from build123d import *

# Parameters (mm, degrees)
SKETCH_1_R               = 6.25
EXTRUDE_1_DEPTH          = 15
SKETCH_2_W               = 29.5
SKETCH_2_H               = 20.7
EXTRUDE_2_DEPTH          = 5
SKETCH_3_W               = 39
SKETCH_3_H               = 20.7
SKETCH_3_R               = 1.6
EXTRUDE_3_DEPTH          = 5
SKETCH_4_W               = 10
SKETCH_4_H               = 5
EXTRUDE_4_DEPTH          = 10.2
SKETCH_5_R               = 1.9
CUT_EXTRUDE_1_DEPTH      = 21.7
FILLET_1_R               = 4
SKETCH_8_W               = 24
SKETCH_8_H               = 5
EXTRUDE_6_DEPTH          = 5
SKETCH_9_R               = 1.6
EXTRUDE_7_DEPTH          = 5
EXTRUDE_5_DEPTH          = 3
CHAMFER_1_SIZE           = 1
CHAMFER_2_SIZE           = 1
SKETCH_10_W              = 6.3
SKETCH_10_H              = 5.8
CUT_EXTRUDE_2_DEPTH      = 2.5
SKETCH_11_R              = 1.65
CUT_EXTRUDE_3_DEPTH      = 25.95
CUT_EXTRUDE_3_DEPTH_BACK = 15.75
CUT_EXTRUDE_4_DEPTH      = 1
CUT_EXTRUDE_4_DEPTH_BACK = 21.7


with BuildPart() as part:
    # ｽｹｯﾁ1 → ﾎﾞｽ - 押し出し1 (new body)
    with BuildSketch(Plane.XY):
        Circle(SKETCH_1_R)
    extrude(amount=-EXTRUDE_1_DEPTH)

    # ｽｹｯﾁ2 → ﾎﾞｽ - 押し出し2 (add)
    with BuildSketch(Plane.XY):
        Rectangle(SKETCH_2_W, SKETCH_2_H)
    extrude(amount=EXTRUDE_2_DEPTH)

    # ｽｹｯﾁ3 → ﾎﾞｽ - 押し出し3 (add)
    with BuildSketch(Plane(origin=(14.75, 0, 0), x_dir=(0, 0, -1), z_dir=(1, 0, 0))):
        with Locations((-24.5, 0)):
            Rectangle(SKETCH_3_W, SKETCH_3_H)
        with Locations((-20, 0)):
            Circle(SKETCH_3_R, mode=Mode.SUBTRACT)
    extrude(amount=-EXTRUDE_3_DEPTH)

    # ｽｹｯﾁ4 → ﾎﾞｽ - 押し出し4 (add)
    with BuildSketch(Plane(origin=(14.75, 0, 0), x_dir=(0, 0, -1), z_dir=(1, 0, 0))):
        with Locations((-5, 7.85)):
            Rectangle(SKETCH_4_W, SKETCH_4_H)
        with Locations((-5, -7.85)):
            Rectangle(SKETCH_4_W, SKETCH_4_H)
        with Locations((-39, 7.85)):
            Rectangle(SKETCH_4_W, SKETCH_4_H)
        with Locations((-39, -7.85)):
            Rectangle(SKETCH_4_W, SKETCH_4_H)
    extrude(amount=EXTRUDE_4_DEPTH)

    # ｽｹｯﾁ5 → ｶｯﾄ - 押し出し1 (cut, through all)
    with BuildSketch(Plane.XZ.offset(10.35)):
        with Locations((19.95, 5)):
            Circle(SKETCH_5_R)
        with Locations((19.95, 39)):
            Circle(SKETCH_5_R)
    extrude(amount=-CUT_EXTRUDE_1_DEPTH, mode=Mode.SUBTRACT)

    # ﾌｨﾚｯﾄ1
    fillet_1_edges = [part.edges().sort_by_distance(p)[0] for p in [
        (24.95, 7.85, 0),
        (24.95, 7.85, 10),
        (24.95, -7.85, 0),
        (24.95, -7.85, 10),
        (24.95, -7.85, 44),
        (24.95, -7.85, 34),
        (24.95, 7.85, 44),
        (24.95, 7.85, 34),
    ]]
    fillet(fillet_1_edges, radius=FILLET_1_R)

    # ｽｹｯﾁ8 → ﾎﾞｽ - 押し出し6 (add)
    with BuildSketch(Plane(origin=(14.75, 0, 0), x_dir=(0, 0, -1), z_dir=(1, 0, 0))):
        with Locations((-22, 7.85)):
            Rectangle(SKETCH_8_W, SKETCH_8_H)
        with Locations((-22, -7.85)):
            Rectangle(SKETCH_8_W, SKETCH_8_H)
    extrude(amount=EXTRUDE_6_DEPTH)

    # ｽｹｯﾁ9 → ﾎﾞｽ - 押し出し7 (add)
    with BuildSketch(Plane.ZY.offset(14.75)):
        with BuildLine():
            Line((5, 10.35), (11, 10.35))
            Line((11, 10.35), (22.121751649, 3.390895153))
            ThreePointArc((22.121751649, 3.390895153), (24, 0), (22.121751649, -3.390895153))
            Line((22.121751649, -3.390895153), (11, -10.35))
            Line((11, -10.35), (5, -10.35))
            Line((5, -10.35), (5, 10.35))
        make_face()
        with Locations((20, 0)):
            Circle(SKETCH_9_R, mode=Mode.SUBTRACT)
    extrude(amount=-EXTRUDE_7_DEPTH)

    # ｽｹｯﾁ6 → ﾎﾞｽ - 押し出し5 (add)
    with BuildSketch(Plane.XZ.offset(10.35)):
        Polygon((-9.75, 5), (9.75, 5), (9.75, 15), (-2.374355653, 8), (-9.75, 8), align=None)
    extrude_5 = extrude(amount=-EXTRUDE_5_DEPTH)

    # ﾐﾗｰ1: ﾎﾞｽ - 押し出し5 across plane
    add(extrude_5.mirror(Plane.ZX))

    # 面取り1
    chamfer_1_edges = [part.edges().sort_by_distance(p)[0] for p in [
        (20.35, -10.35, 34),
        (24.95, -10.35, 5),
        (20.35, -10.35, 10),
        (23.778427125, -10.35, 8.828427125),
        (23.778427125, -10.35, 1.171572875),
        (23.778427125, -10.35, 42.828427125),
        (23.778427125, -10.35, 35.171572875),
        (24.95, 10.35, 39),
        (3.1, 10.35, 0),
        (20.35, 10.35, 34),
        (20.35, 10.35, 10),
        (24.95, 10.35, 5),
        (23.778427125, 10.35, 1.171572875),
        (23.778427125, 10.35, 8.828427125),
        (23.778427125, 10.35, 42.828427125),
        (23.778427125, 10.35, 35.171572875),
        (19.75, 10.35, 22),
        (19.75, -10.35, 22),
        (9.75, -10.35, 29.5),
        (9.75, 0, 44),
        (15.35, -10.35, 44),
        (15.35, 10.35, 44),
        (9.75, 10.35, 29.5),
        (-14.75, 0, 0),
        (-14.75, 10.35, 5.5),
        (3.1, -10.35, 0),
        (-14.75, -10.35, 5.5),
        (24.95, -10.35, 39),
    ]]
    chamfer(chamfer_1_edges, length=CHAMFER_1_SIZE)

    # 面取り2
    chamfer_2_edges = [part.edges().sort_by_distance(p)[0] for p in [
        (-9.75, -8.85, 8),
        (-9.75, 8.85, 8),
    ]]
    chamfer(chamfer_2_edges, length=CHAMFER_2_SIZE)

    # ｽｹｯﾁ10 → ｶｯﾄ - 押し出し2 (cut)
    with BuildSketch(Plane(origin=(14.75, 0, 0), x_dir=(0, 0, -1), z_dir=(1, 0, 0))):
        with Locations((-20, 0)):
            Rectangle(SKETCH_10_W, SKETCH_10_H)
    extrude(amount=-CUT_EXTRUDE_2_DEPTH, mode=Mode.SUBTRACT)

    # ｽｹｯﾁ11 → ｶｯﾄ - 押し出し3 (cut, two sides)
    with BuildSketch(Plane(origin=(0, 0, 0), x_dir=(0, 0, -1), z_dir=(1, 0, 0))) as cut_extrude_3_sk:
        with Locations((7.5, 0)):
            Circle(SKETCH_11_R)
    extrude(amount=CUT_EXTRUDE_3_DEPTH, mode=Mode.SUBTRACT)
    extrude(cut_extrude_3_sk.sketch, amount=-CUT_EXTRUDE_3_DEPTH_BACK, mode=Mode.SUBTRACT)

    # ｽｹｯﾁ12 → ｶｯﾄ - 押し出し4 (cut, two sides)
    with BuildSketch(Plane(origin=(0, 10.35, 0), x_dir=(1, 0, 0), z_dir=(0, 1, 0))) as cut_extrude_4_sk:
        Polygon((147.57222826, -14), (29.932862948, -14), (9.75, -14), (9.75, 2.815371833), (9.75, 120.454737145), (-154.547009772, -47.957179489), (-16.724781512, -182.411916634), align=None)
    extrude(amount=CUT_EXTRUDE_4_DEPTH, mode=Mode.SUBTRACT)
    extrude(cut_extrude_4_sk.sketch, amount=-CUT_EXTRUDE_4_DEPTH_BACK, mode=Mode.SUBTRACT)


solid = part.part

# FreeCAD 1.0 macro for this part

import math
import FreeCAD as App
import Part
import Sketcher
Q = App.Units.Quantity


def edges_at(feature, points):
    """Names of the edges that pass closest to the given points."""
    edges = feature.Shape.Edges
    near = lambda p: min(range(len(edges)), key=lambda i: edges[i].distToShape(Part.Vertex(*p))[0])
    return sorted({f"Edge{near(p) + 1}" for p in points})

doc = App.newDocument("Part")
body = doc.addObject("PartDesign::Body", "Body")

sketch1 = body.newObject("Sketcher::SketchObject", "Sketch")
sketch1.AttachmentSupport = (doc.getObject("XY_Plane"), [""])
sketch1.MapMode = "FlatFace"
sketch1.addGeometry(Part.Circle(App.Vector(0, 0, 0), App.Vector(0, 0, 1), 6.25), False)
sketch1.addConstraint([
    Sketcher.Constraint("Coincident", 0, 3, -1, 1),
    Sketcher.Constraint("Diameter", 0, 12.5),
])
pad1 = body.newObject("PartDesign::Pad", "Pad")
pad1.Profile = sketch1
pad1.Length = 15
pad1.Reversed = True

sketch2 = body.newObject("Sketcher::SketchObject", "Sketch001")
sketch2.AttachmentSupport = (doc.getObject("XY_Plane"), [""])
sketch2.MapMode = "FlatFace"
sketch2.addGeometry([
    Part.LineSegment(App.Vector(-14.75, 10.35, 0), App.Vector(-14.75, -10.35, 0)),
    Part.LineSegment(App.Vector(-14.75, -10.35, 0), App.Vector(14.75, -10.35, 0)),
    Part.LineSegment(App.Vector(14.75, -10.35, 0), App.Vector(14.75, 10.35, 0)),
    Part.LineSegment(App.Vector(14.75, 10.35, 0), App.Vector(-14.75, 10.35, 0)),
], False)
sketch2.addConstraint([
    Sketcher.Constraint("Coincident", 0, 2, 1, 1),
    Sketcher.Constraint("Coincident", 1, 2, 2, 1),
    Sketcher.Constraint("Coincident", 2, 2, 3, 1),
    Sketcher.Constraint("Coincident", 3, 2, 0, 1),
    Sketcher.Constraint("Vertical", 0),
    Sketcher.Constraint("Horizontal", 1),
    Sketcher.Constraint("Vertical", 2),
    Sketcher.Constraint("Horizontal", 3),
    Sketcher.Constraint("Symmetric", 0, 2, 2, 2, -1, 1),
    Sketcher.Constraint("DistanceX", 1, 1, 1, 2, 29.5),
    Sketcher.Constraint("DistanceY", 0, 2, 0, 1, 20.7),
])
pad2 = body.newObject("PartDesign::Pad", "Pad001")
pad2.Profile = sketch2
pad2.Length = 5

sketch3 = body.newObject("Sketcher::SketchObject", "Sketch002")
sketch3.AttachmentSupport = (doc.getObject("YZ_Plane"), [""])
sketch3.MapMode = "FlatFace"
sketch3.AttachmentOffset = App.Placement(App.Vector(0, 0, 14.75), App.Rotation())
sketch3.addGeometry([
    Part.LineSegment(App.Vector(10.35, 44, 0), App.Vector(-10.35, 44, 0)),
    Part.LineSegment(App.Vector(-10.35, 44, 0), App.Vector(-10.35, 5, 0)),
    Part.LineSegment(App.Vector(-10.35, 5, 0), App.Vector(10.35, 5, 0)),
    Part.LineSegment(App.Vector(10.35, 5, 0), App.Vector(10.35, 44, 0)),
    Part.Circle(App.Vector(0, 20, 0), App.Vector(0, 0, 1), 1.6),
], False)
sketch3.addConstraint([
    Sketcher.Constraint("Coincident", 0, 2, 1, 1),
    Sketcher.Constraint("Coincident", 1, 2, 2, 1),
    Sketcher.Constraint("Coincident", 2, 2, 3, 1),
    Sketcher.Constraint("Coincident", 3, 2, 0, 1),
    Sketcher.Constraint("Horizontal", 0),
    Sketcher.Constraint("Vertical", 1),
    Sketcher.Constraint("Horizontal", 2),
    Sketcher.Constraint("Vertical", 3),
    Sketcher.Constraint("PointOnObject", 4, 3, -2),
    Sketcher.Constraint("Diameter", 4, 3.2),
    Sketcher.Constraint("DistanceY", 1, 2, 1, 1, 39.0),
    Sketcher.Constraint("DistanceX", 0, 2, 0, 1, 20.7),
    Sketcher.Constraint("DistanceY", -1, 1, 4, 3, 20.0),
    Sketcher.Constraint("DistanceY", -1, 1, 0, 2, 44.0),
    Sketcher.Constraint("DistanceX", 0, 2, -1, 1, 10.35),
])
pad3 = body.newObject("PartDesign::Pad", "Pad002")
pad3.Profile = sketch3
pad3.Length = 5
pad3.Reversed = True

sketch4 = body.newObject("Sketcher::SketchObject", "Sketch003")
sketch4.AttachmentSupport = (doc.getObject("YZ_Plane"), [""])
sketch4.MapMode = "FlatFace"
sketch4.AttachmentOffset = App.Placement(App.Vector(0, 0, 14.75), App.Rotation())
sketch4.addGeometry([
    Part.LineSegment(App.Vector(10.35, 10, 0), App.Vector(5.35, 10, 0)),
    Part.LineSegment(App.Vector(5.35, 10, 0), App.Vector(5.35, 0, 0)),
    Part.LineSegment(App.Vector(5.35, 0, 0), App.Vector(10.35, 0, 0)),
    Part.LineSegment(App.Vector(10.35, 0, 0), App.Vector(10.35, 10, 0)),
    Part.LineSegment(App.Vector(-5.35, 10, 0), App.Vector(-10.35, 10, 0)),
    Part.LineSegment(App.Vector(-10.35, 10, 0), App.Vector(-10.35, 0, 0)),
    Part.LineSegment(App.Vector(-10.35, 0, 0), App.Vector(-5.35, 0, 0)),
    Part.LineSegment(App.Vector(-5.35, 0, 0), App.Vector(-5.35, 10, 0)),
    Part.LineSegment(App.Vector(10.35, 44, 0), App.Vector(5.35, 44, 0)),
    Part.LineSegment(App.Vector(5.35, 44, 0), App.Vector(5.35, 34, 0)),
    Part.LineSegment(App.Vector(5.35, 34, 0), App.Vector(10.35, 34, 0)),
    Part.LineSegment(App.Vector(10.35, 34, 0), App.Vector(10.35, 44, 0)),
    Part.LineSegment(App.Vector(-5.35, 44, 0), App.Vector(-10.35, 44, 0)),
    Part.LineSegment(App.Vector(-10.35, 44, 0), App.Vector(-10.35, 34, 0)),
    Part.LineSegment(App.Vector(-10.35, 34, 0), App.Vector(-5.35, 34, 0)),
    Part.LineSegment(App.Vector(-5.35, 34, 0), App.Vector(-5.35, 44, 0)),
], False)
sketch4.addConstraint([
    Sketcher.Constraint("Coincident", 0, 2, 1, 1),
    Sketcher.Constraint("Coincident", 1, 2, 2, 1),
    Sketcher.Constraint("Coincident", 2, 2, 3, 1),
    Sketcher.Constraint("Coincident", 3, 2, 0, 1),
    Sketcher.Constraint("Coincident", 4, 2, 5, 1),
    Sketcher.Constraint("Coincident", 5, 2, 6, 1),
    Sketcher.Constraint("Coincident", 6, 2, 7, 1),
    Sketcher.Constraint("Coincident", 7, 2, 4, 1),
    Sketcher.Constraint("Coincident", 8, 2, 9, 1),
    Sketcher.Constraint("Coincident", 9, 2, 10, 1),
    Sketcher.Constraint("Coincident", 10, 2, 11, 1),
    Sketcher.Constraint("Coincident", 11, 2, 8, 1),
    Sketcher.Constraint("Coincident", 12, 2, 13, 1),
    Sketcher.Constraint("Coincident", 13, 2, 14, 1),
    Sketcher.Constraint("Coincident", 14, 2, 15, 1),
    Sketcher.Constraint("Coincident", 15, 2, 12, 1),
    Sketcher.Constraint("Horizontal", 0),
    Sketcher.Constraint("Vertical", 1),
    Sketcher.Constraint("Horizontal", 2),
    Sketcher.Constraint("Vertical", 3),
    Sketcher.Constraint("Horizontal", 4),
    Sketcher.Constraint("Vertical", 5),
    Sketcher.Constraint("Horizontal", 6),
    Sketcher.Constraint("Vertical", 7),
    Sketcher.Constraint("Horizontal", 8),
    Sketcher.Constraint("Vertical", 9),
    Sketcher.Constraint("Horizontal", 10),
    Sketcher.Constraint("Vertical", 11),
    Sketcher.Constraint("Horizontal", 12),
    Sketcher.Constraint("Vertical", 13),
    Sketcher.Constraint("Horizontal", 14),
    Sketcher.Constraint("Vertical", 15),
    Sketcher.Constraint("Symmetric", 2, 2, 5, 2, -1, 1),
    Sketcher.Constraint("Symmetric", 1, 2, 6, 2, -2),
    Sketcher.Constraint("Symmetric", 11, 2, 12, 2, -2),
    Sketcher.Constraint("Symmetric", 9, 2, 14, 2, -2),
    Sketcher.Constraint("Horizontal", 3, 2, 4, 2),
    Sketcher.Constraint("Vertical", 1, 2, 8, 2),
    Sketcher.Constraint("Vertical", 3, 2, 10, 2),
    Sketcher.Constraint("Equal", 7, 9),
    Sketcher.Constraint("DistanceX", 0, 2, 0, 1, 5.0),
    Sketcher.Constraint("DistanceY", 1, 2, 1, 1, 10.0),
    Sketcher.Constraint("DistanceY", -1, 1, 8, 2, 44.0),
    Sketcher.Constraint("DistanceX", 4, 2, 0, 2, 15.7),
])
pad4 = body.newObject("PartDesign::Pad", "Pad003")
pad4.Profile = sketch4
pad4.Length = 10.2

sketch5 = body.newObject("Sketcher::SketchObject", "Sketch004")
sketch5.AttachmentSupport = (doc.getObject("XZ_Plane"), [""])
sketch5.MapMode = "FlatFace"
sketch5.AttachmentOffset = App.Placement(App.Vector(0, 0, 10.35), App.Rotation())
sketch5.addGeometry([
    Part.Circle(App.Vector(19.95, 5, 0), App.Vector(0, 0, 1), 1.9),
    Part.Circle(App.Vector(19.95, 39, 0), App.Vector(0, 0, 1), 1.9),
], False)
sketch5.addConstraint([
    Sketcher.Constraint("Equal", 0, 1),
    Sketcher.Constraint("Vertical", 0, 3, 1, 3),
    Sketcher.Constraint("Diameter", 0, 3.8),
    Sketcher.Constraint("DistanceY", -1, 1, 0, 3, 5.0),
    Sketcher.Constraint("DistanceY", -1, 1, 1, 3, 39.0),
    Sketcher.Constraint("DistanceX", -1, 1, 0, 3, 19.95),
])
pocket1 = body.newObject("PartDesign::Pocket", "Pocket")
pocket1.Profile = sketch5
pocket1.Type = "ThroughAll"
doc.recompute()

fillet = body.newObject("PartDesign::Fillet", "Fillet")
fillet.Base = (pocket1, edges_at(pocket1, [
    (24.95, 7.85, 0),
    (24.95, 7.85, 10),
    (24.95, -7.85, 0),
    (24.95, -7.85, 10),
    (24.95, -7.85, 44),
    (24.95, -7.85, 34),
    (24.95, 7.85, 44),
    (24.95, 7.85, 34),
]))
fillet.Radius = 4

sketch6 = body.newObject("Sketcher::SketchObject", "Sketch005")
sketch6.AttachmentSupport = (doc.getObject("YZ_Plane"), [""])
sketch6.MapMode = "FlatFace"
sketch6.AttachmentOffset = App.Placement(App.Vector(0, 0, 14.75), App.Rotation())
sketch6.addGeometry([
    Part.LineSegment(App.Vector(10.35, 34, 0), App.Vector(5.35, 34, 0)),
    Part.LineSegment(App.Vector(5.35, 34, 0), App.Vector(5.35, 10, 0)),
    Part.LineSegment(App.Vector(5.35, 10, 0), App.Vector(10.35, 10, 0)),
    Part.LineSegment(App.Vector(10.35, 10, 0), App.Vector(10.35, 34, 0)),
    Part.LineSegment(App.Vector(-5.35, 34, 0), App.Vector(-10.35, 34, 0)),
    Part.LineSegment(App.Vector(-10.35, 34, 0), App.Vector(-10.35, 10, 0)),
    Part.LineSegment(App.Vector(-10.35, 10, 0), App.Vector(-5.35, 10, 0)),
    Part.LineSegment(App.Vector(-5.35, 10, 0), App.Vector(-5.35, 34, 0)),
], False)
sketch6.addConstraint([
    Sketcher.Constraint("Coincident", 0, 2, 1, 1),
    Sketcher.Constraint("Coincident", 1, 2, 2, 1),
    Sketcher.Constraint("Coincident", 2, 2, 3, 1),
    Sketcher.Constraint("Coincident", 3, 2, 0, 1),
    Sketcher.Constraint("Coincident", 4, 2, 5, 1),
    Sketcher.Constraint("Coincident", 5, 2, 6, 1),
    Sketcher.Constraint("Coincident", 6, 2, 7, 1),
    Sketcher.Constraint("Coincident", 7, 2, 4, 1),
    Sketcher.Constraint("Horizontal", 0),
    Sketcher.Constraint("Vertical", 1),
    Sketcher.Constraint("Horizontal", 2),
    Sketcher.Constraint("Vertical", 3),
    Sketcher.Constraint("Horizontal", 4),
    Sketcher.Constraint("Vertical", 5),
    Sketcher.Constraint("Horizontal", 6),
    Sketcher.Constraint("Vertical", 7),
    Sketcher.Constraint("Symmetric", 3, 2, 4, 2, -2),
    Sketcher.Constraint("Symmetric", 1, 2, 6, 2, -2),
    Sketcher.Constraint("DistanceX", 0, 2, 0, 1, 5.0),
    Sketcher.Constraint("DistanceY", 1, 2, 1, 1, 24.0),
    Sketcher.Constraint("DistanceY", -1, 1, 0, 2, 34.0),
    Sketcher.Constraint("DistanceX", 4, 2, 0, 2, 15.7),
])
pad5 = body.newObject("PartDesign::Pad", "Pad004")
pad5.Profile = sketch6
pad5.Length = 5

sketch7 = body.newObject("Sketcher::SketchObject", "Sketch006")
sketch7.AttachmentSupport = (doc.getObject("YZ_Plane"), [""])
sketch7.MapMode = "FlatFace"
sketch7.AttachmentOffset = App.Placement(App.Vector(0, 0, -14.75), App.Rotation())
sketch7.addGeometry([
    Part.LineSegment(App.Vector(10.35, 11, 0), App.Vector(10.35, 5, 0)),
    Part.LineSegment(App.Vector(10.35, 5, 0), App.Vector(-10.35, 5, 0)),
    Part.LineSegment(App.Vector(-10.35, 5, 0), App.Vector(-10.35, 11, 0)),
    Part.LineSegment(App.Vector(-10.35, 11, 0), App.Vector(-3.390895, 22.121752, 0)),
    Part.ArcOfCircle(Part.Circle(App.Vector(0, 20, 0), App.Vector(0, 0, 1), 4), math.radians(32.035048), math.radians(147.964952)),
    Part.LineSegment(App.Vector(3.390895, 22.121752, 0), App.Vector(10.35, 11, 0)),
    Part.Circle(App.Vector(0, 20, 0), App.Vector(0, 0, 1), 1.6),
], False)
sketch7.addConstraint([
    Sketcher.Constraint("Coincident", 0, 2, 1, 1),
    Sketcher.Constraint("Coincident", 1, 2, 2, 1),
    Sketcher.Constraint("Coincident", 2, 2, 3, 1),
    Sketcher.Constraint("Tangent", 3, 2, 4, 2),
    Sketcher.Constraint("Tangent", 4, 1, 5, 1),
    Sketcher.Constraint("Coincident", 5, 2, 0, 1),
    Sketcher.Constraint("Vertical", 0),
    Sketcher.Constraint("Horizontal", 1),
    Sketcher.Constraint("Vertical", 2),
    Sketcher.Constraint("Coincident", 6, 3, 4, 3),
    Sketcher.Constraint("Symmetric", 3, 2, 4, 1, -2),
    Sketcher.Constraint("Horizontal", 2, 2, 5, 2),
    Sketcher.Constraint("Radius", 4, 4.0),
    Sketcher.Constraint("Diameter", 6, 3.2),
    Sketcher.Constraint("DistanceY", 0, 2, 0, 1, 6.0),
    Sketcher.Constraint("DistanceX", 1, 2, 1, 1, 20.7),
    Sketcher.Constraint("DistanceY", -1, 1, 4, 3, 20.0),
    Sketcher.Constraint("DistanceY", -1, 1, 0, 2, 5.0),
])
pad6 = body.newObject("PartDesign::Pad", "Pad005")
pad6.Profile = sketch7
pad6.Length = 5

sketch8 = body.newObject("Sketcher::SketchObject", "Sketch007")
sketch8.AttachmentSupport = (doc.getObject("XZ_Plane"), [""])
sketch8.MapMode = "FlatFace"
sketch8.AttachmentOffset = App.Placement(App.Vector(0, 0, 10.35), App.Rotation())
sketch8.addGeometry([
    Part.LineSegment(App.Vector(-9.75, 5, 0), App.Vector(9.75, 5, 0)),
    Part.LineSegment(App.Vector(9.75, 5, 0), App.Vector(9.75, 15, 0)),
    Part.LineSegment(App.Vector(9.75, 15, 0), App.Vector(-2.374356, 8, 0)),
    Part.LineSegment(App.Vector(-2.374356, 8, 0), App.Vector(-9.75, 8, 0)),
    Part.LineSegment(App.Vector(-9.75, 8, 0), App.Vector(-9.75, 5, 0)),
], False)
sketch8.addConstraint([
    Sketcher.Constraint("Coincident", 0, 2, 1, 1),
    Sketcher.Constraint("Coincident", 1, 2, 2, 1),
    Sketcher.Constraint("Coincident", 2, 2, 3, 1),
    Sketcher.Constraint("Coincident", 3, 2, 4, 1),
    Sketcher.Constraint("Coincident", 4, 2, 0, 1),
    Sketcher.Constraint("Horizontal", 0),
    Sketcher.Constraint("Vertical", 1),
    Sketcher.Constraint("Horizontal", 3),
    Sketcher.Constraint("Vertical", 4),
    Sketcher.Constraint("DistanceY", 1, 1, 1, 2, 10.0),
    Sketcher.Constraint("DistanceY", 4, 2, 4, 1, 3.0),
    Sketcher.Constraint("Angle", 2, Q("-150 deg")),
    Sketcher.Constraint("DistanceX", 0, 1, 0, 2, 19.5),
    Sketcher.Constraint("DistanceY", -1, 1, 0, 2, 5.0),
    Sketcher.Constraint("DistanceX", -1, 1, 0, 2, 9.75),
])
pad7 = body.newObject("PartDesign::Pad", "Pad006")
pad7.Profile = sketch8
pad7.Length = 3
pad7.Reversed = True
doc.recompute()

mirrored = body.newObject("PartDesign::Mirrored", "Mirrored")
mirrored.Originals = [pad7]
mirrored.MirrorPlane = (doc.getObject("XZ_Plane"), [""])
body.Tip = mirrored
doc.recompute()

chamfer = body.newObject("PartDesign::Chamfer", "Chamfer")
chamfer.Base = (mirrored, edges_at(mirrored, [
    (20.35, -10.35, 34),
    (24.95, -10.35, 5),
    (20.35, -10.35, 10),
    (23.778, -10.35, 8.828),
    (23.778, -10.35, 1.172),
    (23.778, -10.35, 42.828),
    (23.778, -10.35, 35.172),
    (24.95, 10.35, 39),
    (3.1, 10.35, 0),
    (20.35, 10.35, 34),
    (20.35, 10.35, 10),
    (24.95, 10.35, 5),
    (23.778, 10.35, 1.172),
    (23.778, 10.35, 8.828),
    (23.778, 10.35, 42.828),
    (23.778, 10.35, 35.172),
    (19.75, 10.35, 22),
    (19.75, -10.35, 22),
    (9.75, -10.35, 29.5),
    (9.75, 0, 44),
    (15.35, -10.35, 44),
    (15.35, 10.35, 44),
    (9.75, 10.35, 29.5),
    (-14.75, 0, 0),
    (-14.75, 10.35, 5.5),
    (3.1, -10.35, 0),
    (-14.75, -10.35, 5.5),
    (24.95, -10.35, 39),
]))
chamfer.Size = 1
doc.recompute()

chamfer2 = body.newObject("PartDesign::Chamfer", "Chamfer001")
chamfer2.Base = (chamfer, edges_at(chamfer, [(-9.75, -8.85, 8), (-9.75, 8.85, 8)]))
chamfer2.Size = 1

sketch9 = body.newObject("Sketcher::SketchObject", "Sketch008")
sketch9.AttachmentSupport = (doc.getObject("YZ_Plane"), [""])
sketch9.MapMode = "FlatFace"
sketch9.AttachmentOffset = App.Placement(App.Vector(0, 0, 14.75), App.Rotation())
sketch9.addGeometry([
    Part.LineSegment(App.Vector(2.9, 23.15, 0), App.Vector(-2.9, 23.15, 0)),
    Part.LineSegment(App.Vector(-2.9, 23.15, 0), App.Vector(-2.9, 16.85, 0)),
    Part.LineSegment(App.Vector(-2.9, 16.85, 0), App.Vector(2.9, 16.85, 0)),
    Part.LineSegment(App.Vector(2.9, 16.85, 0), App.Vector(2.9, 23.15, 0)),
], False)
sketch9.addConstraint([
    Sketcher.Constraint("Coincident", 0, 2, 1, 1),
    Sketcher.Constraint("Coincident", 1, 2, 2, 1),
    Sketcher.Constraint("Coincident", 2, 2, 3, 1),
    Sketcher.Constraint("Coincident", 3, 2, 0, 1),
    Sketcher.Constraint("Horizontal", 0),
    Sketcher.Constraint("Vertical", 1),
    Sketcher.Constraint("Horizontal", 2),
    Sketcher.Constraint("Vertical", 3),
    Sketcher.Constraint("DistanceX", 0, 2, 0, 1, 5.8),
    Sketcher.Constraint("DistanceY", 1, 2, 1, 1, 6.3),
    Sketcher.Constraint("DistanceX", 0, 2, -1, 1, 2.9),
    Sketcher.Constraint("DistanceY", -1, 1, 0, 2, 23.15),
])
pocket2 = body.newObject("PartDesign::Pocket", "Pocket001")
pocket2.Profile = sketch9
pocket2.Length = 2.5

sketch10 = body.newObject("Sketcher::SketchObject", "Sketch009")
sketch10.AttachmentSupport = (doc.getObject("YZ_Plane"), [""])
sketch10.MapMode = "FlatFace"
sketch10.addGeometry(Part.Circle(App.Vector(0, -7.5, 0), App.Vector(0, 0, 1), 1.65), False)
sketch10.addConstraint([
    Sketcher.Constraint("PointOnObject", 0, 3, -2),
    Sketcher.Constraint("Diameter", 0, 3.3),
    Sketcher.Constraint("DistanceY", 0, 3, -1, 1, 7.5),
])
pocket3 = body.newObject("PartDesign::Pocket", "Pocket002")
pocket3.Profile = sketch10
pocket3.Type = "ThroughAll"
pocket3.Midplane = True

sketch11 = body.newObject("Sketcher::SketchObject", "Sketch010")
sketch11.AttachmentSupport = (doc.getObject("XZ_Plane"), [""])
sketch11.MapMode = "FlatFace"
sketch11.AttachmentOffset = App.Placement(App.Vector(0, 0, -10.35), App.Rotation())
sketch11.addGeometry([
    Part.LineSegment(App.Vector(147.572228, 14, 0), App.Vector(9.75, 14, 0)),
    Part.LineSegment(App.Vector(9.75, 14, 0), App.Vector(9.75, -120.454737, 0)),
    Part.LineSegment(App.Vector(9.75, -120.454737, 0), App.Vector(-154.54701, 47.957179, 0)),
    Part.LineSegment(App.Vector(-154.54701, 47.957179, 0), App.Vector(-16.724782, 182.411917, 0)),
    Part.LineSegment(App.Vector(-16.724782, 182.411917, 0), App.Vector(147.572228, 14, 0)),
], False)
sketch11.addConstraint([
    Sketcher.Constraint("Coincident", 0, 2, 1, 1),
    Sketcher.Constraint("Coincident", 1, 2, 2, 1),
    Sketcher.Constraint("Coincident", 2, 2, 3, 1),
    Sketcher.Constraint("Coincident", 3, 2, 4, 1),
    Sketcher.Constraint("Coincident", 4, 2, 0, 1),
    Sketcher.Constraint("Horizontal", 0),
    Sketcher.Constraint("Vertical", 1),
    Sketcher.Constraint("Perpendicular", 2, 3),
    Sketcher.Constraint("Perpendicular", 3, 4),
    Sketcher.Constraint("Equal", 2, 4),
    Sketcher.Constraint("DistanceY", -1, 1, 0, 2, 14.0),
    Sketcher.Constraint("DistanceX", -1, 1, 0, 2, 9.75),
    Sketcher.Constraint("DistanceX", 0, 2, 0, 1, 137.822228),
    Sketcher.Constraint("Distance", 2, 235.278731),
    Sketcher.Constraint("DistanceY", 1, 2, 1, 1, 134.454737),
])
pocket4 = body.newObject("PartDesign::Pocket", "Pocket003")
pocket4.Profile = sketch11
pocket4.Type = "ThroughAll"
pocket4.Midplane = True

doc.recompute()
